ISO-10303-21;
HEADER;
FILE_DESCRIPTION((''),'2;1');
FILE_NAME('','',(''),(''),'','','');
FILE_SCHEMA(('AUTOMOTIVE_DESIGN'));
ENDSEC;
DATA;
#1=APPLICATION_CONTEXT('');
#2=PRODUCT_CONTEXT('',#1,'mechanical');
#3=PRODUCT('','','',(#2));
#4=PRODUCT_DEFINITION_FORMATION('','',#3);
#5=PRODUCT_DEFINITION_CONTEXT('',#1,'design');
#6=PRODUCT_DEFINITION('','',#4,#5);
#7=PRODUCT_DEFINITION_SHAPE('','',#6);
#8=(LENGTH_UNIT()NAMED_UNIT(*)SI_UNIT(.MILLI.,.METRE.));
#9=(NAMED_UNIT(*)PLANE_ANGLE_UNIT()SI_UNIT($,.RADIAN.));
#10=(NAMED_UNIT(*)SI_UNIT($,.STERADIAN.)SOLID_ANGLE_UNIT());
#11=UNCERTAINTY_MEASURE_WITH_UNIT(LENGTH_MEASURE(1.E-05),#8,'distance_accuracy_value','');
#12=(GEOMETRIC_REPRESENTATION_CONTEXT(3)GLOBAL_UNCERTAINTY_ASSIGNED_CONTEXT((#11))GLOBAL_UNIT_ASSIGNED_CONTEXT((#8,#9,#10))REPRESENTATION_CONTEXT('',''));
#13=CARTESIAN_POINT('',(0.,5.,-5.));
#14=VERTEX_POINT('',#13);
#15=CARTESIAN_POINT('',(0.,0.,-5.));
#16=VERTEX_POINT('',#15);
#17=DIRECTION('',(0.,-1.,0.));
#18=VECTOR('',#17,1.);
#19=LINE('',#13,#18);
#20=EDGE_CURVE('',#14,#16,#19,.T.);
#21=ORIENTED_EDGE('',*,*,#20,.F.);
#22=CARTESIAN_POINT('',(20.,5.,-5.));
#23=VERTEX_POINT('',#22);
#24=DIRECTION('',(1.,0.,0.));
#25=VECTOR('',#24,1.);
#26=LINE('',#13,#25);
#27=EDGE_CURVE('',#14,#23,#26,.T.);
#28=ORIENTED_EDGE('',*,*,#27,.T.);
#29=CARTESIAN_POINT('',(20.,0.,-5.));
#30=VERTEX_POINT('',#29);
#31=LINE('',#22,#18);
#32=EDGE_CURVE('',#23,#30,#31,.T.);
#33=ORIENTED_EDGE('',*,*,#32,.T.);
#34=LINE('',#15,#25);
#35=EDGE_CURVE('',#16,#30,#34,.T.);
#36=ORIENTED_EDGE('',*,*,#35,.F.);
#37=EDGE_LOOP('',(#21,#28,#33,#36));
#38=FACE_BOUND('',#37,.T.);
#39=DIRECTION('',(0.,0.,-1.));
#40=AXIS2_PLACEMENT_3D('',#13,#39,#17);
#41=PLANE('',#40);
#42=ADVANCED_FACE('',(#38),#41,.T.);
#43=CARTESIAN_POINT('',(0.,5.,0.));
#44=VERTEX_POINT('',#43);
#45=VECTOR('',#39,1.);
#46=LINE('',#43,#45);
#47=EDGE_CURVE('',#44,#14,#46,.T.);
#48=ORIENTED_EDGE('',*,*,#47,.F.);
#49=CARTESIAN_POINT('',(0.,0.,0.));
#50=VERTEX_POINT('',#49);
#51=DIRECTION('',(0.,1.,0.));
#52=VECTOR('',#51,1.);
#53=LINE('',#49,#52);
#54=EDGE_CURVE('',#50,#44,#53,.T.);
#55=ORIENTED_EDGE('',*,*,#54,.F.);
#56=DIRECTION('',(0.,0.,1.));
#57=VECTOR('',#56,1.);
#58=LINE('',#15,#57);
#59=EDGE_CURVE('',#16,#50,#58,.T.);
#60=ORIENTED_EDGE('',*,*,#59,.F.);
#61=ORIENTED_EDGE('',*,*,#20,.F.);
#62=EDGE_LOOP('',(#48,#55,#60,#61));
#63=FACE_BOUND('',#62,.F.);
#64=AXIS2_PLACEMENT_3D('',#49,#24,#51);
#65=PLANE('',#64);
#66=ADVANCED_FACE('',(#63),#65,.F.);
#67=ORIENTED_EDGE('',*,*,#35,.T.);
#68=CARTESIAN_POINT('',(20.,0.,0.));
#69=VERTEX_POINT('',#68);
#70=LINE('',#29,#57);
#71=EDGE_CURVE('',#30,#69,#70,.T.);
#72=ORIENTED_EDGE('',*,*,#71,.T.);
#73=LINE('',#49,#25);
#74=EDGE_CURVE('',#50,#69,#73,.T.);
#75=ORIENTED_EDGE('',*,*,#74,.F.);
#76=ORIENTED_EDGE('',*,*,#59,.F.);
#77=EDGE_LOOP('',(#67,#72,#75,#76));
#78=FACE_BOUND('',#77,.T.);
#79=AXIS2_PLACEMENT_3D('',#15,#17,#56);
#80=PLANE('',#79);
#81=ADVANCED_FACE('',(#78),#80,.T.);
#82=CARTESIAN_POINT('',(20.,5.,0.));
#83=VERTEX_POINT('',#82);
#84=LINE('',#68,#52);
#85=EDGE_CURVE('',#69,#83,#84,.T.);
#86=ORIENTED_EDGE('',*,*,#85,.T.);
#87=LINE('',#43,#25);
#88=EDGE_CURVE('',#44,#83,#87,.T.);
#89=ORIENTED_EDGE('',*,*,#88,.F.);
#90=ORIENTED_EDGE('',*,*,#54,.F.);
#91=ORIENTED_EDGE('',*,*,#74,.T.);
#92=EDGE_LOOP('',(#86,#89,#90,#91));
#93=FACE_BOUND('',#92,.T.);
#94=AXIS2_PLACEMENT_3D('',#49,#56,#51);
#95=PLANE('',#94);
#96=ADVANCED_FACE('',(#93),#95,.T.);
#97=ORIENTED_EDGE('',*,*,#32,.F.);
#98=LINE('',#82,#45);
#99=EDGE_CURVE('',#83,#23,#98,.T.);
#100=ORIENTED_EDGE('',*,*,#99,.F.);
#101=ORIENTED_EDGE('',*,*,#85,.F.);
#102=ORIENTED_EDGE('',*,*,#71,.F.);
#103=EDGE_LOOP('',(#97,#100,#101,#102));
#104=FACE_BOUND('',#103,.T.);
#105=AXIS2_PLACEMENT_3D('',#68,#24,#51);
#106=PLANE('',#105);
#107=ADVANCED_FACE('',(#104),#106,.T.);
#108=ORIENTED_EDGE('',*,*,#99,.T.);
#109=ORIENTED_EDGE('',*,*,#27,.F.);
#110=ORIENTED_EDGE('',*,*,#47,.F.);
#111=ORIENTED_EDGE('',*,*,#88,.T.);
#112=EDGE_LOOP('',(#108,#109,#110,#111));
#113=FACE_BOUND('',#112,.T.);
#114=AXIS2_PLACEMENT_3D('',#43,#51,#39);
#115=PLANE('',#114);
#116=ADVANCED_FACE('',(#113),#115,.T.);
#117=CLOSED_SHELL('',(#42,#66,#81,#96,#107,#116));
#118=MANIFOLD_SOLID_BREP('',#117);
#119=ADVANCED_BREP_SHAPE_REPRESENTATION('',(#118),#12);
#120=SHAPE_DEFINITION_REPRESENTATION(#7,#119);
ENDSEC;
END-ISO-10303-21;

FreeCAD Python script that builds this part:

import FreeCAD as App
import Part
import Sketcher
Q = App.Units.Quantity

doc = App.newDocument("Part")
body = doc.addObject("PartDesign::Body", "Body")

sketch1 = doc.addObject("Sketcher::SketchObject", "Sketch")
body.addObject(sketch1)
sketch1.AttachmentSupport = (doc.YZ_Plane, [""])
sketch1.MapMode = "FlatFace"
sketch1.addGeometry([
    Part.LineSegment(App.Vector(5, 0, 0), App.Vector(0, 0, 0)),
    Part.LineSegment(App.Vector(0, 0, 0), App.Vector(0, -5, 0)),
    Part.LineSegment(App.Vector(0, -5, 0), App.Vector(5, -5, 0)),
    Part.LineSegment(App.Vector(5, -5, 0), App.Vector(5, 0, 0)),
], False)
sketch1.addConstraint([
    Sketcher.Constraint("Coincident", 0, 2, 1, 1),
    Sketcher.Constraint("Coincident", 1, 2, 2, 1),
    Sketcher.Constraint("Coincident", 2, 2, 3, 1),
    Sketcher.Constraint("Coincident", 3, 2, 0, 1),
    Sketcher.Constraint("Horizontal", 0),
    Sketcher.Constraint("Vertical", 1),
    Sketcher.Constraint("Horizontal", 2),
    Sketcher.Constraint("Vertical", 3),
    Sketcher.Constraint("Coincident", 0, 2, -1, 1),
    Sketcher.Constraint("Equal", 2, 1),
    Sketcher.Constraint("DistanceX", 0, 2, 0, 1, Q("5 mm")),
])
pad1 = doc.addObject("PartDesign::Pad", "Pad")
body.addObject(pad1)
pad1.Profile = sketch1
pad1.Length = 20

doc.recompute()
